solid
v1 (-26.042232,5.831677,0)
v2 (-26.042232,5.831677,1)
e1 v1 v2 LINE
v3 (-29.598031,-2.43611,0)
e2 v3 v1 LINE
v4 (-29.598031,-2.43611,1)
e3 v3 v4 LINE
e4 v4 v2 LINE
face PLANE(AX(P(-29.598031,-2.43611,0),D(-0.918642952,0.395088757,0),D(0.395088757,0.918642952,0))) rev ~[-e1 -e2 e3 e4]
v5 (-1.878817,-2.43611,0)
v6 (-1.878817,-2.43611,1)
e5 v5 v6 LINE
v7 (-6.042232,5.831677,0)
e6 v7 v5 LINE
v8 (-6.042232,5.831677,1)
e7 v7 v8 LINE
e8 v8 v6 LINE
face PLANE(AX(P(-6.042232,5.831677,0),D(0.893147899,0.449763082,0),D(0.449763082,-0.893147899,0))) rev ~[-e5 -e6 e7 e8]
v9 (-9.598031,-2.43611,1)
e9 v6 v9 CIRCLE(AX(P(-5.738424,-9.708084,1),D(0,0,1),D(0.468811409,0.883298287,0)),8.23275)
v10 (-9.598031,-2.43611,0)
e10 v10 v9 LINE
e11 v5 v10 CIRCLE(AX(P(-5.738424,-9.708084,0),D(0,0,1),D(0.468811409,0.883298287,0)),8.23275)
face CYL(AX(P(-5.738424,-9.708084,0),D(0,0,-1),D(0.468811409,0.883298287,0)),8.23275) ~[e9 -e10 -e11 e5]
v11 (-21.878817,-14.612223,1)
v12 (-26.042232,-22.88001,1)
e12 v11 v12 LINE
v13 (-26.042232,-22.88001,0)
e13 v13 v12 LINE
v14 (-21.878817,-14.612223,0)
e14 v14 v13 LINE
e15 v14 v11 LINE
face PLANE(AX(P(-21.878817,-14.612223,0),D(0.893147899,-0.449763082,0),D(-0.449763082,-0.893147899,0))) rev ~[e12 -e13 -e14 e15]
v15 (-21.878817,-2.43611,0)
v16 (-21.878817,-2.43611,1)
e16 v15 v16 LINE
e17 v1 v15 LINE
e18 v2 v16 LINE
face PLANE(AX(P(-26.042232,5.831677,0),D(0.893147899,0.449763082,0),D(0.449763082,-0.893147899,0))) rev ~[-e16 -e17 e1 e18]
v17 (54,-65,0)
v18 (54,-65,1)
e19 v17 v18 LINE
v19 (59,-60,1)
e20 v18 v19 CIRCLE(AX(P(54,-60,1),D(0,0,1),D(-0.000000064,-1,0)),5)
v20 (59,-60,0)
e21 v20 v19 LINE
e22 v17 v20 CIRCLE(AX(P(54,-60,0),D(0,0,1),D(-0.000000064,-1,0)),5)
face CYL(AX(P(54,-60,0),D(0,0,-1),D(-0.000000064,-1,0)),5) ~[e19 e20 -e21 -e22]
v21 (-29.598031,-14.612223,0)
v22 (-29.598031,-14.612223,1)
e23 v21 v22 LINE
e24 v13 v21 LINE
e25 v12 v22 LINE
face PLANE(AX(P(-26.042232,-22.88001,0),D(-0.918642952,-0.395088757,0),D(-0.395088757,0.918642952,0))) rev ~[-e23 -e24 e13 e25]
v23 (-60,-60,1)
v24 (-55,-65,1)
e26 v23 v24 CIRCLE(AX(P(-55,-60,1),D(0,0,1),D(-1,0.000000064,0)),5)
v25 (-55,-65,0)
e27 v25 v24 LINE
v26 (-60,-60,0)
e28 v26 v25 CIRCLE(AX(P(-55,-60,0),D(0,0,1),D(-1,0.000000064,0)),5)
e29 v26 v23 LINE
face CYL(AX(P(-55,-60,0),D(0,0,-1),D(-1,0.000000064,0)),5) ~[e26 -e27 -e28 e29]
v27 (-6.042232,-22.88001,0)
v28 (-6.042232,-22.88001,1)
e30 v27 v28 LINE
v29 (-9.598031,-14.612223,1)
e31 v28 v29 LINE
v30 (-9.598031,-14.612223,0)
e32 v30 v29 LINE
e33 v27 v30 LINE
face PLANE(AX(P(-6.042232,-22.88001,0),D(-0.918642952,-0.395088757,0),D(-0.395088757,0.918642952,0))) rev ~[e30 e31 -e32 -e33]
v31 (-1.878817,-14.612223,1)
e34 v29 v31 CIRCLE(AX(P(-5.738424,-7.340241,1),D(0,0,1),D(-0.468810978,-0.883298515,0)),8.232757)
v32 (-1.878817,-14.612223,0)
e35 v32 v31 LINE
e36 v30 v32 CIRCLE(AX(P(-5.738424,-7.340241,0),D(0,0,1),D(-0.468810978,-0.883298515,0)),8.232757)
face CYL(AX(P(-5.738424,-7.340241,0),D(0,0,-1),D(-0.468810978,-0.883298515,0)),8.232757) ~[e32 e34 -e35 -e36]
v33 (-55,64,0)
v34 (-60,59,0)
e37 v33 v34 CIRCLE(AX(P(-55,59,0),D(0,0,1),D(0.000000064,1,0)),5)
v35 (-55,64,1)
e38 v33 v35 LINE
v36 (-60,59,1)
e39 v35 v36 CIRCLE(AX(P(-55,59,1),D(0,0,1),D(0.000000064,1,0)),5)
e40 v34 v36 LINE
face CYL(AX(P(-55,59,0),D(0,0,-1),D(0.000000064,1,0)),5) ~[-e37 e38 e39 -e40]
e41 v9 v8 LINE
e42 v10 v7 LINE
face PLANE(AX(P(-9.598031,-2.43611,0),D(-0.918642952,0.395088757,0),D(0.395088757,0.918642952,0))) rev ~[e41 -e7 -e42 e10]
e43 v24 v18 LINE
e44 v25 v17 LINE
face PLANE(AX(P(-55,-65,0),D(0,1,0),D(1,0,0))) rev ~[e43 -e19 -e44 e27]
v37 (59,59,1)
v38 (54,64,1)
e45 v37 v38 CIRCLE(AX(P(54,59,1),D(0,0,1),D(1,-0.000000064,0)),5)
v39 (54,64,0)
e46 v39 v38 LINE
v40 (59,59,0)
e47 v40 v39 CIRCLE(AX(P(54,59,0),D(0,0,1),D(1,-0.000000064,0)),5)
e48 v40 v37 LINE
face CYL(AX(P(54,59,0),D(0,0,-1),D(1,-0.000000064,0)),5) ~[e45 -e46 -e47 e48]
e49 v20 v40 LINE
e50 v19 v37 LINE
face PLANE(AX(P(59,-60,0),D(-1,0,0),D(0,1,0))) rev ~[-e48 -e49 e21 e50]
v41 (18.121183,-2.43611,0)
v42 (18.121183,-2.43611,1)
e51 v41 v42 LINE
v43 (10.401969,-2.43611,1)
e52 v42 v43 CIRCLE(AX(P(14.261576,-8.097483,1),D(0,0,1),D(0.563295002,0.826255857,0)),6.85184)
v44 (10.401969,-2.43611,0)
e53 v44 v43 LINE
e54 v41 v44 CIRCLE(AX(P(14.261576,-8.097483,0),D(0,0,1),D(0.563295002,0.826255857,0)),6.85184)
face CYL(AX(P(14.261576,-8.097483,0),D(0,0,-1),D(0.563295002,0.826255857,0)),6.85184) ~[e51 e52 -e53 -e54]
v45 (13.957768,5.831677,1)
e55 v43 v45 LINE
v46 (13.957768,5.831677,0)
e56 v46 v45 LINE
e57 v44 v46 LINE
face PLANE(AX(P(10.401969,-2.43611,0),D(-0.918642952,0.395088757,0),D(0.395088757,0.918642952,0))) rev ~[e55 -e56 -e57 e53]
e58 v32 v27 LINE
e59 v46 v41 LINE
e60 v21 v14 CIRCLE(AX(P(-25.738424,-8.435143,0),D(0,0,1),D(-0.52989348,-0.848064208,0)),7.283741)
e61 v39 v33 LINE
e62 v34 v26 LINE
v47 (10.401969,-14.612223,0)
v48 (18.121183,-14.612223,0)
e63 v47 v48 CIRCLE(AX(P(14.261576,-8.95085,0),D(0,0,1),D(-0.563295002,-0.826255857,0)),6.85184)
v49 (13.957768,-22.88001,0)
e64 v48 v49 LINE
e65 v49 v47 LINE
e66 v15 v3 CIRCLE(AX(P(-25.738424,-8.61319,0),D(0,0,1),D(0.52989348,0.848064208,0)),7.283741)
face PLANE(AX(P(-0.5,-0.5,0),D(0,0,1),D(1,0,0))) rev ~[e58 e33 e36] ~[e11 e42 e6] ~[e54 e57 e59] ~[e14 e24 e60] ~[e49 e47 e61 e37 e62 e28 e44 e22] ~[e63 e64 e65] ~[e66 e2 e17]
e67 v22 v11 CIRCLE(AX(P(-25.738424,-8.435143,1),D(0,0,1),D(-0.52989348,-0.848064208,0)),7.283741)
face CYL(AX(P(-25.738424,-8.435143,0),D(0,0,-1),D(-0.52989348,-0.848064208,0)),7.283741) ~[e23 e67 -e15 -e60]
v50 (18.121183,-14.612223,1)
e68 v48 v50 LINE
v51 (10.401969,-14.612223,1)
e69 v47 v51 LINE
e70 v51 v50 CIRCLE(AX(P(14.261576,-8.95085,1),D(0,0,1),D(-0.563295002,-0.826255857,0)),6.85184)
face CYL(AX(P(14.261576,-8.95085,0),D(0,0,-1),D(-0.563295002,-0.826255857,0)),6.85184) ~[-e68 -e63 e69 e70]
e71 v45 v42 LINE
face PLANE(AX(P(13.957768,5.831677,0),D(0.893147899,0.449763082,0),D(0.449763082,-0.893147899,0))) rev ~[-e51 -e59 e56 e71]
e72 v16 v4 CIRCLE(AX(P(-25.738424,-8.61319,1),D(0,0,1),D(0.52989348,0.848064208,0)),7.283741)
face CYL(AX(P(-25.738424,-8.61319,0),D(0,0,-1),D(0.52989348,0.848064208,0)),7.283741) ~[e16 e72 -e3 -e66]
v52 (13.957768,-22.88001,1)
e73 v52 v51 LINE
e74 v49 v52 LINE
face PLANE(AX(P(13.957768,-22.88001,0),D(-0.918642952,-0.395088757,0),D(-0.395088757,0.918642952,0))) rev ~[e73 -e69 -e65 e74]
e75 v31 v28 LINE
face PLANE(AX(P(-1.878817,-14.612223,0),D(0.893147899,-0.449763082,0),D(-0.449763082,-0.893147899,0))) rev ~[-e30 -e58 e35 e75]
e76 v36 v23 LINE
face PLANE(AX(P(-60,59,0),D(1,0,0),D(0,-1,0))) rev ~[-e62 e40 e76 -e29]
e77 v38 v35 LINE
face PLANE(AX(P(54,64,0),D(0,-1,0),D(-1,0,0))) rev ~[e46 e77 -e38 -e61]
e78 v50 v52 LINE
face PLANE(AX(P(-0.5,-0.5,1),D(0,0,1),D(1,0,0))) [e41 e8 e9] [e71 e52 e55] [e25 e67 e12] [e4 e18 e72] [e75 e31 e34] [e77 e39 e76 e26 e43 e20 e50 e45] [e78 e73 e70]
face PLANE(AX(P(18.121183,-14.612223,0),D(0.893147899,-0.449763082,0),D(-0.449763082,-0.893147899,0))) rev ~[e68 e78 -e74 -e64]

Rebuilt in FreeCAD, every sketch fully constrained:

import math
import FreeCAD as App
import Part
import Sketcher
Q = App.Units.Quantity

doc = App.newDocument("Part")
body = doc.addObject("PartDesign::Body", "Body")

# Sketch on XY plane
sketch1 = body.newObject("Sketcher::SketchObject", "Sketch")
sketch1.AttachmentSupport = (doc.getObject("XY_Plane"), [""])
sketch1.MapMode = "FlatFace"
sketch1.addGeometry([
    Part.LineSegment(App.Vector(-55, -65, 0), App.Vector(54, -65, 0)),  # 0
    Part.ArcOfCircle(Part.Circle(App.Vector(54, -60, 0), App.Vector(0, 0, 1), 5), math.radians(-90), math.radians(0)),  # 1
    Part.LineSegment(App.Vector(59, -60, 0), App.Vector(59, 59, 0)),  # 2
    Part.ArcOfCircle(Part.Circle(App.Vector(54, 59, 0), App.Vector(0, 0, 1), 5), math.radians(0), math.radians(90)),  # 3
    Part.LineSegment(App.Vector(54, 64, 0), App.Vector(-55, 64, 0)),  # 4
    Part.ArcOfCircle(Part.Circle(App.Vector(-55, 59, 0), App.Vector(0, 0, 1), 5), math.radians(90), math.radians(180)),  # 5
    Part.LineSegment(App.Vector(-60, 59, 0), App.Vector(-60, -60, 0)),  # 6
    Part.ArcOfCircle(Part.Circle(App.Vector(-55, -60, 0), App.Vector(0, 0, 1), 5), math.radians(180), math.radians(270)),  # 7
    Part.ArcOfCircle(Part.Circle(App.Vector(-25.7, -8.4, 0), App.Vector(0, 0, 1), 7.3), math.radians(-122), math.radians(-58)),  # 8
    Part.LineSegment(App.Vector(-21.9, -14.6, 0), App.Vector(-26, -22.9, 0)),  # 9
    Part.LineSegment(App.Vector(-26, -22.9, 0), App.Vector(-29.6, -14.6, 0)),  # 10
    Part.LineSegment(App.Vector(-1.9, -14.6, 0), App.Vector(-6, -22.9, 0)),  # 11
    Part.LineSegment(App.Vector(-6, -22.9, 0), App.Vector(-9.6, -14.6, 0)),  # 12
    Part.ArcOfCircle(Part.Circle(App.Vector(-5.7, -7.3, 0), App.Vector(0, 0, 1), 8.2), math.radians(-118), math.radians(-62)),  # 13
    Part.LineSegment(App.Vector(18.1, -14.6, 0), App.Vector(14, -22.9, 0)),  # 14
    Part.LineSegment(App.Vector(14, -22.9, 0), App.Vector(10.4, -14.6, 0)),  # 15
    Part.ArcOfCircle(Part.Circle(App.Vector(14.3, -9, 0), App.Vector(0, 0, 1), 6.9), math.radians(-124), math.radians(-56)),  # 16
    Part.ArcOfCircle(Part.Circle(App.Vector(-25.7, -8.6, 0), App.Vector(0, 0, 1), 7.3), math.radians(58), math.radians(122)),  # 17
    Part.LineSegment(App.Vector(-29.6, -2.4, 0), App.Vector(-26, 5.8, 0)),  # 18
    Part.LineSegment(App.Vector(-26, 5.8, 0), App.Vector(-21.9, -2.4, 0)),  # 19
    Part.LineSegment(App.Vector(-6, 5.8, 0), App.Vector(-1.9, -2.4, 0)),  # 20
    Part.ArcOfCircle(Part.Circle(App.Vector(-5.7, -9.7, 0), App.Vector(0, 0, 1), 8.2), math.radians(62), math.radians(118)),  # 21
    Part.LineSegment(App.Vector(-9.6, -2.4, 0), App.Vector(-6, 5.8, 0)),  # 22
    Part.LineSegment(App.Vector(14, 5.8, 0), App.Vector(18.1, -2.4, 0)),  # 23
    Part.ArcOfCircle(Part.Circle(App.Vector(14.3, -8.1, 0), App.Vector(0, 0, 1), 6.9), math.radians(56), math.radians(124)),  # 24
    Part.LineSegment(App.Vector(10.4, -2.4, 0), App.Vector(14, 5.8, 0)),  # 25
], False)
sketch1.addConstraint([
    Sketcher.Constraint("Tangent", 0, 2, 1, 1),
    Sketcher.Constraint("Tangent", 1, 2, 2, 1),
    Sketcher.Constraint("Tangent", 2, 2, 3, 1),
    Sketcher.Constraint("Tangent", 3, 2, 4, 1),
    Sketcher.Constraint("Tangent", 4, 2, 5, 1),
    Sketcher.Constraint("Tangent", 5, 2, 6, 1),
    Sketcher.Constraint("Tangent", 6, 2, 7, 1),
    Sketcher.Constraint("Tangent", 7, 2, 0, 1),
    Sketcher.Constraint("Coincident", 8, 2, 9, 1),
    Sketcher.Constraint("Coincident", 9, 2, 10, 1),
    Sketcher.Constraint("Coincident", 10, 2, 8, 1),
    Sketcher.Constraint("Coincident", 11, 2, 12, 1),
    Sketcher.Constraint("Coincident", 12, 2, 13, 1),
    Sketcher.Constraint("Coincident", 13, 2, 11, 1),
    Sketcher.Constraint("Coincident", 14, 2, 15, 1),
    Sketcher.Constraint("Coincident", 15, 2, 16, 1),
    Sketcher.Constraint("Coincident", 16, 2, 14, 1),
    Sketcher.Constraint("Coincident", 17, 2, 18, 1),
    Sketcher.Constraint("Coincident", 18, 2, 19, 1),
    Sketcher.Constraint("Coincident", 19, 2, 17, 1),
    Sketcher.Constraint("Coincident", 20, 2, 21, 1),
    Sketcher.Constraint("Coincident", 21, 2, 22, 1),
    Sketcher.Constraint("Coincident", 22, 2, 20, 1),
    Sketcher.Constraint("Coincident", 23, 2, 24, 1),
    Sketcher.Constraint("Coincident", 24, 2, 25, 1),
    Sketcher.Constraint("Coincident", 25, 2, 23, 1),
    Sketcher.Constraint("Horizontal", 0),
    Sketcher.Constraint("Vertical", 2),
    Sketcher.Constraint("Horizontal", 4),
    Sketcher.Constraint("Vertical", 6),
    Sketcher.Constraint("Equal", 1, 3),
    Sketcher.Constraint("Equal", 3, 5),
    Sketcher.Constraint("Equal", 5, 7),
    Sketcher.Constraint("Equal", 8, 17),
    Sketcher.Constraint("Equal", 16, 24),
    Sketcher.Constraint("Parallel", 9, 11),
    Sketcher.Constraint("Parallel", 10, 12),
    Sketcher.Constraint("Parallel", 11, 14),
    Sketcher.Constraint("Parallel", 12, 15),
    Sketcher.Constraint("Parallel", 19, 20),
    Sketcher.Constraint("Parallel", 18, 22),
    Sketcher.Constraint("Parallel", 20, 23),
    Sketcher.Constraint("Parallel", 22, 25),
    Sketcher.Constraint("Horizontal", 8, 2, 10, 2),
    Sketcher.Constraint("Horizontal", 9, 2, 11, 2),
    Sketcher.Constraint("Horizontal", 10, 2, 12, 2),
    Sketcher.Constraint("Horizontal", 12, 2, 13, 2),
    Sketcher.Constraint("Horizontal", 11, 2, 14, 2),
    Sketcher.Constraint("Horizontal", 13, 2, 15, 2),
    Sketcher.Constraint("Horizontal", 15, 2, 16, 2),
    Sketcher.Constraint("Horizontal", 17, 2, 19, 2),
    Sketcher.Constraint("Horizontal", 19, 2, 20, 2),
    Sketcher.Constraint("Horizontal", 20, 2, 21, 2),
    Sketcher.Constraint("Horizontal", 18, 2, 22, 2),
    Sketcher.Constraint("Horizontal", 21, 2, 23, 2),
    Sketcher.Constraint("Horizontal", 23, 2, 24, 2),
    Sketcher.Constraint("Horizontal", 22, 2, 25, 2),
    Sketcher.Constraint("Vertical", 8, 3, 17, 3),
    Sketcher.Constraint("Vertical", 13, 3, 21, 3),
    Sketcher.Constraint("Vertical", 16, 3, 24, 3),
    Sketcher.Constraint("Vertical", 10, 2, 17, 2),
    Sketcher.Constraint("Vertical", 9, 2, 18, 2),
    Sketcher.Constraint("Equal", 15, 18),
    Sketcher.Constraint("Radius", 1, Q("5 mm")),
    Sketcher.Constraint("DistanceX", 0, 1, 0, 2, Q("109 mm")),
    Sketcher.Constraint("DistanceY", 2, 1, 2, 2, Q("119 mm")),
    Sketcher.Constraint("Distance", 10, Q("9 mm")),
    Sketcher.Constraint("DistanceX", -1, 1, 1, 3, Q("54 mm")),
    Sketcher.Constraint("DistanceY", 1, 3, -1, 1, Q("60 mm")),
    Sketcher.Constraint("DistanceX", 8, 3, 13, 3, Q("20 mm")),
    Sketcher.Constraint("DistanceX", 13, 3, 16, 3, Q("20 mm")),
    Sketcher.Constraint("Radius", 8, Q("7.283741 mm")),
    Sketcher.Constraint("Radius", 16, Q("6.85184 mm")),
    Sketcher.Constraint("Radius", 21, Q("8.23275 mm")),
    Sketcher.Constraint("Radius", 13, Q("8.232757 mm")),
    Sketcher.Constraint("DistanceY", 21, 3, 24, 3, Q("1.610601 mm")),
    Sketcher.Constraint("DistanceX", 10, 2, 9, 2, Q("3.555799 mm")),
    Sketcher.Constraint("DistanceY", 9, 2, 17, 2, Q("20.4439 mm")),
    Sketcher.Constraint("DistanceY", 13, 3, -1, 1, Q("7.340241 mm")),
    Sketcher.Constraint("DistanceX", 9, 2, -1, 1, Q("26.042232 mm")),
])
pad1 = body.newObject("PartDesign::Pad", "Pad")
pad1.Profile = sketch1
pad1.Length = 1

doc.recompute()
